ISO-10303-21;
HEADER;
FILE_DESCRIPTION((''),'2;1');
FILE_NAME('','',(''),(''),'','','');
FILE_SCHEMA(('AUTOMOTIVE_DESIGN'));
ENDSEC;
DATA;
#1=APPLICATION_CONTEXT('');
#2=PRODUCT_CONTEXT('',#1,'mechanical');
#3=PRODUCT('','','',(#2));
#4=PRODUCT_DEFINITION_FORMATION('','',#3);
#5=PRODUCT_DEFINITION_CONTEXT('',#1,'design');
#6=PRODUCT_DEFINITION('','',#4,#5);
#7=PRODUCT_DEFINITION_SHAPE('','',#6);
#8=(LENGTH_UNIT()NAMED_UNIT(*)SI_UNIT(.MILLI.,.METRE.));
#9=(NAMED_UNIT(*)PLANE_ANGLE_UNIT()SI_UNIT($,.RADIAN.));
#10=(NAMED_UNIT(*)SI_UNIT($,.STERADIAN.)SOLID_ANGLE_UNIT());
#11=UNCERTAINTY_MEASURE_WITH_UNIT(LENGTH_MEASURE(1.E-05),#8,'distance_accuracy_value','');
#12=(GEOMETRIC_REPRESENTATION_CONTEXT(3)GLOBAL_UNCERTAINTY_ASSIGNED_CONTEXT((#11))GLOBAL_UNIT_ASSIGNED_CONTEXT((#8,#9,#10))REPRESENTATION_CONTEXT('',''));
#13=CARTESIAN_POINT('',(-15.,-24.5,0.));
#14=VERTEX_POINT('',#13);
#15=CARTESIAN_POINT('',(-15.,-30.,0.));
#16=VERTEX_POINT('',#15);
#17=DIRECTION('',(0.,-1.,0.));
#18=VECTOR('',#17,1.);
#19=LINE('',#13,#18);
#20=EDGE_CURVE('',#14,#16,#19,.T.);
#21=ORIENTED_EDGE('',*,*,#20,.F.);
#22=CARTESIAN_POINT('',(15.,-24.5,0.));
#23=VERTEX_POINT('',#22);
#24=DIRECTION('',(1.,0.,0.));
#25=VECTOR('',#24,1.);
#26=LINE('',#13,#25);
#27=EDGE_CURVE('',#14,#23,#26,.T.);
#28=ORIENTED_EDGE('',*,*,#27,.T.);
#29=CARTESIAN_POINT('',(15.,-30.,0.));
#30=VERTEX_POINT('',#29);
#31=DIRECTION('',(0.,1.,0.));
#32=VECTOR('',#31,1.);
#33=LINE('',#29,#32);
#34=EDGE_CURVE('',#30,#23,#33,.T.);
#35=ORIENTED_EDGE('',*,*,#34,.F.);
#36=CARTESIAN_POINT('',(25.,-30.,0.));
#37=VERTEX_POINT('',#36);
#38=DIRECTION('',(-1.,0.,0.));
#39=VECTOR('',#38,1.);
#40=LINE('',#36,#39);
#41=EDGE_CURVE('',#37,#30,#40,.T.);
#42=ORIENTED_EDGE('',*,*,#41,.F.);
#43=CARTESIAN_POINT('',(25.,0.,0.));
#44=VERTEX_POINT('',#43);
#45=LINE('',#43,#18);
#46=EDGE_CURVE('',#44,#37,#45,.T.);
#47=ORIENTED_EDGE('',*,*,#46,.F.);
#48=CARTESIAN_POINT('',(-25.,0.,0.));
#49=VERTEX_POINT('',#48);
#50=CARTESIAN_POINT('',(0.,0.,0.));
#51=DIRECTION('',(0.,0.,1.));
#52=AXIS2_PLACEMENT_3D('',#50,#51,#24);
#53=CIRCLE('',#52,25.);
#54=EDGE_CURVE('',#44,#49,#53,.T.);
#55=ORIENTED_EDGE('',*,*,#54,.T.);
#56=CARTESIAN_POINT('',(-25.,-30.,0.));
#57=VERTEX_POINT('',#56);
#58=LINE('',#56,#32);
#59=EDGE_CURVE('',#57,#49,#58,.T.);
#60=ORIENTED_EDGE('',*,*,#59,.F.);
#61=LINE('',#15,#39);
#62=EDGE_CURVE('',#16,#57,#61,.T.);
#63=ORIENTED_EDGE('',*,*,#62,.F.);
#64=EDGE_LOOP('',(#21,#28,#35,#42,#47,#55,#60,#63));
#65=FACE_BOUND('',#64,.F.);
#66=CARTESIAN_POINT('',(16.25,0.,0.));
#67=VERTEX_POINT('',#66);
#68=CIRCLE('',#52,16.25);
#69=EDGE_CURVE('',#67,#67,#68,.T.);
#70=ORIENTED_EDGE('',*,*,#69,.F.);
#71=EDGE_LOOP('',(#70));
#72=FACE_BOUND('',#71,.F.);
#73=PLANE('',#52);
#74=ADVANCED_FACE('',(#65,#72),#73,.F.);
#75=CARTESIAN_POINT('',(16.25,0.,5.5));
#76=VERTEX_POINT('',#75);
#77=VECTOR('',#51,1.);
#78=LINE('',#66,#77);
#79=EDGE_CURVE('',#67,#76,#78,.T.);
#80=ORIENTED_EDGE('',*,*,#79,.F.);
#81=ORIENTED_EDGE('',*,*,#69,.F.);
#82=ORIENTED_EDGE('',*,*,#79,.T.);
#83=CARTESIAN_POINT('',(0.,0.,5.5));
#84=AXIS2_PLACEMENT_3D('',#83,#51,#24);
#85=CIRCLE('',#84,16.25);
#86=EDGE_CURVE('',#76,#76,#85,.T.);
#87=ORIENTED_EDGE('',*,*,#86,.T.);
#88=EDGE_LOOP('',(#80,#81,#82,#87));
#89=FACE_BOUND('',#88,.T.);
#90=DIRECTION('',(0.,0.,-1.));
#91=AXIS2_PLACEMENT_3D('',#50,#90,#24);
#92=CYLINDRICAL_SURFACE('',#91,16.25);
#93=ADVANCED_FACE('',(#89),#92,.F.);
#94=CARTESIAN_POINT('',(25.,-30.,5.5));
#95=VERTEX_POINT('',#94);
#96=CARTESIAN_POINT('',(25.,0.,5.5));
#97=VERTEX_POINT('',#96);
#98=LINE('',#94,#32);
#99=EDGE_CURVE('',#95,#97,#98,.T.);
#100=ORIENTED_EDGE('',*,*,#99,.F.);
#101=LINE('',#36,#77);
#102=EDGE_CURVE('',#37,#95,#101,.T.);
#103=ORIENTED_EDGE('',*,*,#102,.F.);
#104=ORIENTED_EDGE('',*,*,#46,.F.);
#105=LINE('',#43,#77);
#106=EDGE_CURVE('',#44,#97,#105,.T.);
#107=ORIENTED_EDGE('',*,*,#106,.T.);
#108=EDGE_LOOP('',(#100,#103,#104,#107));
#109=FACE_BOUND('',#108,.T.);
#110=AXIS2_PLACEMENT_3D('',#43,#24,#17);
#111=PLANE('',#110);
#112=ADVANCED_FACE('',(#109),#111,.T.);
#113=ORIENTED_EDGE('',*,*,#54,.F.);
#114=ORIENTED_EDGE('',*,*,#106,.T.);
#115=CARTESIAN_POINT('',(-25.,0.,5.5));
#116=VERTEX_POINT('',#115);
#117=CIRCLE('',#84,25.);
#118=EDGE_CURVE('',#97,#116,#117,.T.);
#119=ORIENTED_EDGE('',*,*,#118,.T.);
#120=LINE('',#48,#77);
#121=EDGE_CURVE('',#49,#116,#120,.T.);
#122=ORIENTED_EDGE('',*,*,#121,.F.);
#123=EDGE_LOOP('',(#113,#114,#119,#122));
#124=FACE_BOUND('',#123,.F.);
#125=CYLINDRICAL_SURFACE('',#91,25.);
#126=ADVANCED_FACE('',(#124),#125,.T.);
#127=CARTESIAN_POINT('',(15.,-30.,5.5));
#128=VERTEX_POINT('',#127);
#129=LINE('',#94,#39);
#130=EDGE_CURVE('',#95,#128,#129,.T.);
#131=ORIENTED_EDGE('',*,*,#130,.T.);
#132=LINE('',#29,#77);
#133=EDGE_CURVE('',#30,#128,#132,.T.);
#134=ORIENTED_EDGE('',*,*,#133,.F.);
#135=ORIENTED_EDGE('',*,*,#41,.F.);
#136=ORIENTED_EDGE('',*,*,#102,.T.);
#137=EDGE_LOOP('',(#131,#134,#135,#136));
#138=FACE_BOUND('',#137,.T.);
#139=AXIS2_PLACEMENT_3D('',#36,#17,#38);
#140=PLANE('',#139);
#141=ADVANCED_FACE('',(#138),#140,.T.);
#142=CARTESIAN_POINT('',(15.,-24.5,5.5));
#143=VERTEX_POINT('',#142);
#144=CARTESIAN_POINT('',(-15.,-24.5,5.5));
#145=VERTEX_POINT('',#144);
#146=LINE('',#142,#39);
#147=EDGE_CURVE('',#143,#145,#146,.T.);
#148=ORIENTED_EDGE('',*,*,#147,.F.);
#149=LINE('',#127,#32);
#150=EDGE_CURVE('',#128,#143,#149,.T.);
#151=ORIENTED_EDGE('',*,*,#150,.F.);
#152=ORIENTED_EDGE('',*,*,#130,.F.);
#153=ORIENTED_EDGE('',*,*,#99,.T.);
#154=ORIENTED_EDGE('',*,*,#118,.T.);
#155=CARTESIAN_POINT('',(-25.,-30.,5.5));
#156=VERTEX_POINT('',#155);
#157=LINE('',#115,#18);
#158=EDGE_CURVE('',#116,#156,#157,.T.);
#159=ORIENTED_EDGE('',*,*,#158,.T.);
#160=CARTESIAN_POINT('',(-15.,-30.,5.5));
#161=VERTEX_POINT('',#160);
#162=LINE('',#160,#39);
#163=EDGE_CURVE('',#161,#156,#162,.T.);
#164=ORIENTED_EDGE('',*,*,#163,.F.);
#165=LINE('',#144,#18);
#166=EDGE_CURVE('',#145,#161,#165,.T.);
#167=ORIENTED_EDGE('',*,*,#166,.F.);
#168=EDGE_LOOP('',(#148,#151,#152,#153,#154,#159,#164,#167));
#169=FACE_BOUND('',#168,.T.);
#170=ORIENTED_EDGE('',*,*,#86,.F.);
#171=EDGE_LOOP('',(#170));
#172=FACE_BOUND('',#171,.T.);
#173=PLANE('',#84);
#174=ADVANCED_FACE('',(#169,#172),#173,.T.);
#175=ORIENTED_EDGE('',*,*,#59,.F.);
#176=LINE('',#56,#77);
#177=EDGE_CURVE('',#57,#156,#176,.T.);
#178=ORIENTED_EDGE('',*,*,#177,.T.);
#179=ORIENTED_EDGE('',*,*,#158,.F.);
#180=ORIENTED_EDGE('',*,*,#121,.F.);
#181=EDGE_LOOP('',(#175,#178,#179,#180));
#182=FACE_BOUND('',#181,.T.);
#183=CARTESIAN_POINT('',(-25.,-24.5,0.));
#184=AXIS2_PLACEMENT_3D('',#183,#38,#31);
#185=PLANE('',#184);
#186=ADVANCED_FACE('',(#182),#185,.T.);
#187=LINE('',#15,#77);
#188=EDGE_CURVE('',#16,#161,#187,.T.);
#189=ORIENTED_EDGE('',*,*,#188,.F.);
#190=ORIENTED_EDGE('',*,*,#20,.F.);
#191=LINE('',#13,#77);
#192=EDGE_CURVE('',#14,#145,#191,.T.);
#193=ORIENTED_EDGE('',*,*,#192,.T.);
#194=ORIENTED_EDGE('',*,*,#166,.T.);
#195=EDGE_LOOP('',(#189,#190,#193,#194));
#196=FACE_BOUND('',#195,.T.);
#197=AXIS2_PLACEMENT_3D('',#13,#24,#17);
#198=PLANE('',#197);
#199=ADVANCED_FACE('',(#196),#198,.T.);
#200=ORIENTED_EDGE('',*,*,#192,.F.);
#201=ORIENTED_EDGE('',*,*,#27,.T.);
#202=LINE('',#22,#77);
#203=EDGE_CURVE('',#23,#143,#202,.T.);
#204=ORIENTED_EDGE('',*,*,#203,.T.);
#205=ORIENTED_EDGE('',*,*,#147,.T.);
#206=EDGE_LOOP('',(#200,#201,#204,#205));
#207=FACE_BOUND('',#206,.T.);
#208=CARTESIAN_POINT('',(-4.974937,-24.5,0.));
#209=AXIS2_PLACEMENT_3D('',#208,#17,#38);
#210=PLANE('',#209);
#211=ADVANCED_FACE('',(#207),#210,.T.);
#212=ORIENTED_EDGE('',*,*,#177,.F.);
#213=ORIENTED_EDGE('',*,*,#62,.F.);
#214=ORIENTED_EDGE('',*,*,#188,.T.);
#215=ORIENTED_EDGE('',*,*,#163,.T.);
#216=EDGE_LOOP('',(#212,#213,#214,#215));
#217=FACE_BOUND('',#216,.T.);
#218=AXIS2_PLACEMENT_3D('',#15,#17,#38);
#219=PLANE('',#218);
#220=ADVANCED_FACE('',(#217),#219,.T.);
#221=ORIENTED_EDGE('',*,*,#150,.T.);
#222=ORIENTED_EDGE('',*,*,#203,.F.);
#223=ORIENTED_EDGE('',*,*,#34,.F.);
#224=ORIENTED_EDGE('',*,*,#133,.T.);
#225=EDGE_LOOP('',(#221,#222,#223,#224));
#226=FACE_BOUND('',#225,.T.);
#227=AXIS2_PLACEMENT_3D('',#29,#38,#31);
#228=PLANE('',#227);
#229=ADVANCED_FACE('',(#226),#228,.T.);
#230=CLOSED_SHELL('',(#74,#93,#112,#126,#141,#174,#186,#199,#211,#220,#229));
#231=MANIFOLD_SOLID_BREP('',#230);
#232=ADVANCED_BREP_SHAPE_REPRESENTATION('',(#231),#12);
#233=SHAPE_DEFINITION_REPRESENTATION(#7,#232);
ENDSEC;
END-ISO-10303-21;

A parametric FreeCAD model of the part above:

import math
import FreeCAD as App
import Part
import Sketcher
from FreeCAD import Vector
Q = App.Units.Quantity

doc = App.newDocument("Part")
body = doc.addObject("PartDesign::Body", "Body")

# Sketch on XY plane
sketch1 = doc.addObject("Sketcher::SketchObject", "Sketch")
body.addObject(sketch1)
sketch1.AttachmentSupport = (doc.XY_Plane, [""])
sketch1.MapMode = "FlatFace"
sketch1.addGeometry(Part.LineSegment(Vector(-15, -24.5, 0), Vector(15, -24.5, 0)), False)
sketch1.addGeometry(Part.LineSegment(Vector(15, -24.5, 0), Vector(15, -30, 0)), False)
sketch1.addGeometry(Part.LineSegment(Vector(15, -30, 0), Vector(25, -30, 0)), False)
sketch1.addGeometry(Part.LineSegment(Vector(25, -30, 0), Vector(25, 0, 0)), False)
sketch1.addGeometry(Part.ArcOfCircle(Part.Circle(Vector(0, 0, 0), Vector(0, 0, 1), 25), math.radians(0), math.radians(180)), False)
sketch1.addGeometry(Part.LineSegment(Vector(-25, 0, 0), Vector(-25, -30, 0)), False)
sketch1.addGeometry(Part.LineSegment(Vector(-25, -30, 0), Vector(-15, -30, 0)), False)
sketch1.addGeometry(Part.LineSegment(Vector(-15, -30, 0), Vector(-15, -24.5, 0)), False)
sketch1.addGeometry(Part.Circle(Vector(0, 0, 0), Vector(0, 0, 1), 16.25), False)
sketch1.addConstraint(Sketcher.Constraint("Coincident", 0, 2, 1, 1))
sketch1.addConstraint(Sketcher.Constraint("Coincident", 1, 2, 2, 1))
sketch1.addConstraint(Sketcher.Constraint("Coincident", 2, 2, 3, 1))
sketch1.addConstraint(Sketcher.Constraint("Tangent", 3, 2, 4, 1))
sketch1.addConstraint(Sketcher.Constraint("Tangent", 4, 2, 5, 1))
sketch1.addConstraint(Sketcher.Constraint("Coincident", 5, 2, 6, 1))
sketch1.addConstraint(Sketcher.Constraint("Coincident", 6, 2, 7, 1))
sketch1.addConstraint(Sketcher.Constraint("Coincident", 7, 2, 0, 1))
sketch1.addConstraint(Sketcher.Constraint("Horizontal", 0))
sketch1.addConstraint(Sketcher.Constraint("Vertical", 1))
sketch1.addConstraint(Sketcher.Constraint("Horizontal", 2))
sketch1.addConstraint(Sketcher.Constraint("Vertical", 3))
sketch1.addConstraint(Sketcher.Constraint("Vertical", 5))
sketch1.addConstraint(Sketcher.Constraint("Horizontal", 6))
sketch1.addConstraint(Sketcher.Constraint("Vertical", 7))
sketch1.addConstraint(Sketcher.Constraint("Coincident", 4, 3, -1, 1))
sketch1.addConstraint(Sketcher.Constraint("Coincident", 8, 3, -1, 1))
sketch1.addConstraint(Sketcher.Constraint("Symmetric", 1, 2, 6, 2, -2))
sketch1.addConstraint(Sketcher.Constraint("Equal", 0, 3))
sketch1.addConstraint(Sketcher.Constraint("Radius", 4, Q("25 mm")))
sketch1.addConstraint(Sketcher.Constraint("Diameter", 8, Q("32.5 mm")))
sketch1.addConstraint(Sketcher.Constraint("DistanceX", 2, 1, 2, 2, Q("10 mm")))
sketch1.addConstraint(Sketcher.Constraint("DistanceY", 1, 2, 1, 1, Q("5.5 mm")))
pad1 = doc.addObject("PartDesign::Pad", "Pad")
body.addObject(pad1)
pad1.Profile = sketch1
pad1.Length = 5.5

doc.recompute()
